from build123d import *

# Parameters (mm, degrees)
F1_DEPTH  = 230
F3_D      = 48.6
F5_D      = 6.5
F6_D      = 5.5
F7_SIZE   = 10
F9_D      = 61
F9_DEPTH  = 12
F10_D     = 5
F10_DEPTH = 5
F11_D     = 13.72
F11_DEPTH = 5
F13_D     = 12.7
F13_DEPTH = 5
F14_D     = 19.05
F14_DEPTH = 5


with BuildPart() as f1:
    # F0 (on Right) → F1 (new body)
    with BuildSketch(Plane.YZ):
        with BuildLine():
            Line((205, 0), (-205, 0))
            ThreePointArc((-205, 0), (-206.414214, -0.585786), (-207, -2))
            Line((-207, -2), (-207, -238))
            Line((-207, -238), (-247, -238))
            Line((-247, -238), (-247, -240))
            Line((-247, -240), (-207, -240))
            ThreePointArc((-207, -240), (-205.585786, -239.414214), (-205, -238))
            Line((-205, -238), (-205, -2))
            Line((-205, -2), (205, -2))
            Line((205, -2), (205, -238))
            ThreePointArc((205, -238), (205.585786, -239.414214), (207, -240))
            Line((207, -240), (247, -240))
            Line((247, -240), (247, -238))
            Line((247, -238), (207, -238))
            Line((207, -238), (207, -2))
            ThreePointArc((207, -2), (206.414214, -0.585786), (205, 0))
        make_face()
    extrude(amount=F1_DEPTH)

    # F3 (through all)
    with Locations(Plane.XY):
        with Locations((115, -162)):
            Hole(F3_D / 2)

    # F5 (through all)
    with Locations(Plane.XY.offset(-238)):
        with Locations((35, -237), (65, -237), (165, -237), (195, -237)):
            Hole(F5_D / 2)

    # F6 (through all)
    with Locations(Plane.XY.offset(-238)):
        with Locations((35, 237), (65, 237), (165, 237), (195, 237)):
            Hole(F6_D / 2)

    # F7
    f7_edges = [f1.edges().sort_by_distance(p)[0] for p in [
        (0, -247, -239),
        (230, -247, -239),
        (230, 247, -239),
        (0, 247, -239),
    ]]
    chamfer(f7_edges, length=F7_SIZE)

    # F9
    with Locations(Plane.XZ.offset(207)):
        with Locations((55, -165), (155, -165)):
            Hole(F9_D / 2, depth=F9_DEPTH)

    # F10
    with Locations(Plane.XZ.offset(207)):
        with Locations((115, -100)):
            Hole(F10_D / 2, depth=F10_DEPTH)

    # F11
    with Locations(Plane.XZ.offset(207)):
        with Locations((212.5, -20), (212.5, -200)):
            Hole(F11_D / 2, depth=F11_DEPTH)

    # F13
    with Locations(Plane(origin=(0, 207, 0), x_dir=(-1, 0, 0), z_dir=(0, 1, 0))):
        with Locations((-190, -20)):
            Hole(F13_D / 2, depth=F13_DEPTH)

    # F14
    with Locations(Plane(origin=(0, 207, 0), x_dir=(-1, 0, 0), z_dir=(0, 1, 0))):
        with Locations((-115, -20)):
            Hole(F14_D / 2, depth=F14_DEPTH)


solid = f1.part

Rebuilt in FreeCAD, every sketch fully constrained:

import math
import FreeCAD as App
import Part
import Sketcher

V = App.Vector
Q = App.Units.Quantity


def edges_at(feature, points):
    """Names of the edges that pass closest to the given points."""
    edges = feature.Shape.Edges
    near = lambda p: min(range(len(edges)), key=lambda i: edges[i].distToShape(Part.Vertex(*p))[0])
    return sorted({f"Edge{near(p) + 1}" for p in points})

doc = App.newDocument("Part")
body = doc.addObject("PartDesign::Body", "Body")

# Sketch on YZ plane
sketch1 = body.newObject("Sketcher::SketchObject", "Sketch")
sketch1.AttachmentSupport = (doc.getObject("YZ_Plane"), [""])
sketch1.MapMode = "FlatFace"
sketch1.addGeometry([
    Part.LineSegment(V(205, 0, 0), V(-205, 0, 0)),  # 0
    Part.ArcOfCircle(Part.Circle(V(-205, -2, 0), V(0, 0, 1), 2), math.radians(90), math.radians(180)),  # 1
    Part.LineSegment(V(-207, -2, 0), V(-207, -238, 0)),  # 2
    Part.LineSegment(V(-207, -238, 0), V(-247, -238, 0)),  # 3
    Part.LineSegment(V(-247, -238, 0), V(-247, -240, 0)),  # 4
    Part.LineSegment(V(-247, -240, 0), V(-207, -240, 0)),  # 5
    Part.ArcOfCircle(Part.Circle(V(-207, -238, 0), V(0, 0, 1), 2), math.radians(-90), math.radians(0)),  # 6
    Part.LineSegment(V(-205, -238, 0), V(-205, -2, 0)),  # 7
    Part.LineSegment(V(-205, -2, 0), V(205, -2, 0)),  # 8
    Part.LineSegment(V(205, -2, 0), V(205, -238, 0)),  # 9
    Part.ArcOfCircle(Part.Circle(V(207, -238, 0), V(0, 0, 1), 2), math.radians(180), math.radians(270)),  # 10
    Part.LineSegment(V(207, -240, 0), V(247, -240, 0)),  # 11
    Part.LineSegment(V(247, -240, 0), V(247, -238, 0)),  # 12
    Part.LineSegment(V(247, -238, 0), V(207, -238, 0)),  # 13
    Part.LineSegment(V(207, -238, 0), V(207, -2, 0)),  # 14
    Part.ArcOfCircle(Part.Circle(V(205, -2, 0), V(0, 0, 1), 2), math.radians(0), math.radians(90)),  # 15
], False)
sketch1.addConstraint([
    Sketcher.Constraint("Tangent", 0, 2, 1, 1),
    Sketcher.Constraint("Tangent", 1, 2, 2, 1),
    Sketcher.Constraint("Coincident", 2, 2, 3, 1),
    Sketcher.Constraint("Coincident", 3, 2, 4, 1),
    Sketcher.Constraint("Coincident", 4, 2, 5, 1),
    Sketcher.Constraint("Tangent", 5, 2, 6, 1),
    Sketcher.Constraint("Tangent", 6, 2, 7, 1),
    Sketcher.Constraint("Coincident", 7, 2, 8, 1),
    Sketcher.Constraint("Coincident", 8, 2, 9, 1),
    Sketcher.Constraint("Tangent", 9, 2, 10, 1),
    Sketcher.Constraint("Tangent", 10, 2, 11, 1),
    Sketcher.Constraint("Coincident", 11, 2, 12, 1),
    Sketcher.Constraint("Coincident", 12, 2, 13, 1),
    Sketcher.Constraint("Coincident", 13, 2, 14, 1),
    Sketcher.Constraint("Tangent", 14, 2, 15, 1),
    Sketcher.Constraint("Tangent", 15, 2, 0, 1),
    Sketcher.Constraint("Horizontal", 0),
    Sketcher.Constraint("Vertical", 2),
    Sketcher.Constraint("Horizontal", 3),
    Sketcher.Constraint("Vertical", 4),
    Sketcher.Constraint("Horizontal", 5),
    Sketcher.Constraint("Vertical", 7),
    Sketcher.Constraint("Horizontal", 8),
    Sketcher.Constraint("Vertical", 9),
    Sketcher.Constraint("Horizontal", 11),
    Sketcher.Constraint("Vertical", 12),
    Sketcher.Constraint("Horizontal", 13),
    Sketcher.Constraint("Vertical", 14),
    Sketcher.Constraint("Coincident", 2, 2, 6, 3),
    Sketcher.Constraint("Coincident", 7, 2, 1, 3),
    Sketcher.Constraint("Coincident", 8, 2, 15, 3),
    Sketcher.Constraint("Coincident", 13, 2, 10, 3),
    Sketcher.Constraint("Symmetric", 0, 2, 15, 2, -1, 1),
    Sketcher.Constraint("Symmetric", 4, 2, 11, 2, -2),
    Sketcher.Constraint("Radius", 1, Q("1.999999 mm")),
    Sketcher.Constraint("DistanceX", 0, 2, 0, 1, Q("410 mm")),
    Sketcher.Constraint("DistanceX", 3, 2, 3, 1, Q("40 mm")),
    Sketcher.Constraint("DistanceY", 2, 2, 2, 1, Q("236 mm")),
])
pad1 = body.newObject("PartDesign::Pad", "Pad")
pad1.Profile = sketch1
pad1.Length = 230

# Sketch on XY plane
sketch2 = body.newObject("Sketcher::SketchObject", "Sketch001")
sketch2.AttachmentSupport = (doc.getObject("XY_Plane"), [""])
sketch2.MapMode = "FlatFace"
sketch2.addGeometry(Part.Circle(V(115, -162, 0), V(0, 0, 1), 24), False)
sketch2.addConstraint([
    Sketcher.Constraint("Diameter", 0, Q("48.6 mm")),
    Sketcher.Constraint("DistanceX", -1, 1, 0, 3, Q("115 mm")),
    Sketcher.Constraint("DistanceY", 0, 3, -1, 1, Q("162 mm")),
])
doc.recompute()
hole = body.newObject("PartDesign::Hole", "Hole")
hole.Profile = sketch2
hole.ThreadType = "None"
hole.Diameter = 48.6
hole.DepthType = "ThroughAll"

# Sketch on XY plane
sketch3 = body.newObject("Sketcher::SketchObject", "Sketch002")
sketch3.AttachmentSupport = (doc.getObject("XY_Plane"), [""])
sketch3.MapMode = "FlatFace"
sketch3.AttachmentOffset = App.Placement(V(0, 0, -238), App.Rotation())
sketch3.addGeometry([
    Part.Circle(V(35, -237, 0), V(0, 0, 1), 3.2),
    Part.Circle(V(65, -237, 0), V(0, 0, 1), 3.2),
    Part.Circle(V(165, -237, 0), V(0, 0, 1), 3.2),
    Part.Circle(V(195, -237, 0), V(0, 0, 1), 3.2),
], False)
sketch3.addConstraint([
    Sketcher.Constraint("Equal", 0, 1),
    Sketcher.Constraint("Equal", 1, 2),
    Sketcher.Constraint("Equal", 2, 3),
    Sketcher.Constraint("Horizontal", 0, 3, 1, 3),
    Sketcher.Constraint("Horizontal", 1, 3, 2, 3),
    Sketcher.Constraint("Horizontal", 2, 3, 3, 3),
    Sketcher.Constraint("Diameter", 0, Q("6.5 mm")),
    Sketcher.Constraint("DistanceX", -1, 1, 0, 3, Q("35 mm")),
    Sketcher.Constraint("DistanceY", 0, 3, -1, 1, Q("237 mm")),
    Sketcher.Constraint("DistanceX", -1, 1, 1, 3, Q("65 mm")),
    Sketcher.Constraint("DistanceX", -1, 1, 2, 3, Q("165 mm")),
    Sketcher.Constraint("DistanceX", -1, 1, 3, 3, Q("195 mm")),
])
doc.recompute()
hole2 = body.newObject("PartDesign::Hole", "Hole001")
hole2.Profile = sketch3
hole2.ThreadType = "None"
hole2.Diameter = 6.5
hole2.DepthType = "ThroughAll"

# Sketch on XY plane
sketch4 = body.newObject("Sketcher::SketchObject", "Sketch003")
sketch4.AttachmentSupport = (doc.getObject("XY_Plane"), [""])
sketch4.MapMode = "FlatFace"
sketch4.AttachmentOffset = App.Placement(V(0, 0, -238), App.Rotation())
sketch4.addGeometry([
    Part.Circle(V(35, 237, 0), V(0, 0, 1), 2.8),
    Part.Circle(V(65, 237, 0), V(0, 0, 1), 2.8),
    Part.Circle(V(165, 237, 0), V(0, 0, 1), 2.8),
    Part.Circle(V(195, 237, 0), V(0, 0, 1), 2.8),
], False)
sketch4.addConstraint([
    Sketcher.Constraint("Equal", 0, 1),
    Sketcher.Constraint("Equal", 1, 2),
    Sketcher.Constraint("Equal", 2, 3),
    Sketcher.Constraint("Horizontal", 0, 3, 1, 3),
    Sketcher.Constraint("Horizontal", 1, 3, 2, 3),
    Sketcher.Constraint("Horizontal", 2, 3, 3, 3),
    Sketcher.Constraint("Diameter", 0, Q("5.5 mm")),
    Sketcher.Constraint("DistanceX", -1, 1, 0, 3, Q("35 mm")),
    Sketcher.Constraint("DistanceY", -1, 1, 0, 3, Q("237 mm")),
    Sketcher.Constraint("DistanceX", -1, 1, 1, 3, Q("65 mm")),
    Sketcher.Constraint("DistanceX", -1, 1, 2, 3, Q("165 mm")),
    Sketcher.Constraint("DistanceX", -1, 1, 3, 3, Q("195 mm")),
])
doc.recompute()
hole3 = body.newObject("PartDesign::Hole", "Hole002")
hole3.Profile = sketch4
hole3.ThreadType = "None"
hole3.Diameter = 5.5
hole3.DepthType = "ThroughAll"
doc.recompute()

chamfer = body.newObject("PartDesign::Chamfer", "Chamfer")
chamfer.Base = (hole3, edges_at(hole3, [
    (0, -247, -239),
    (230, -247, -239),
    (230, 247, -239),
    (0, 247, -239),
]))
chamfer.Size = 10

# Sketch on XZ plane
sketch5 = body.newObject("Sketcher::SketchObject", "Sketch004")
sketch5.AttachmentSupport = (doc.getObject("XZ_Plane"), [""])
sketch5.MapMode = "FlatFace"
sketch5.AttachmentOffset = App.Placement(V(0, 0, 207), App.Rotation())
sketch5.addGeometry([
    Part.Circle(V(55, -165, 0), V(0, 0, 1), 30),
    Part.Circle(V(155, -165, 0), V(0, 0, 1), 30),
], False)
sketch5.addConstraint([
    Sketcher.Constraint("Equal", 0, 1),
    Sketcher.Constraint("Horizontal", 0, 3, 1, 3),
    Sketcher.Constraint("Diameter", 0, Q("61 mm")),
    Sketcher.Constraint("DistanceX", -1, 1, 0, 3, Q("55 mm")),
    Sketcher.Constraint("DistanceY", 0, 3, -1, 1, Q("165 mm")),
    Sketcher.Constraint("DistanceX", -1, 1, 1, 3, Q("155 mm")),
])
doc.recompute()
hole4 = body.newObject("PartDesign::Hole", "Hole003")
hole4.Profile = sketch5
hole4.ThreadType = "None"
hole4.Diameter = 61
hole4.DepthType = "Dimension"
hole4.Depth = 12
hole4.DrillPoint = "Flat"

# Sketch on XZ plane
sketch6 = body.newObject("Sketcher::SketchObject", "Sketch005")
sketch6.AttachmentSupport = (doc.getObject("XZ_Plane"), [""])
sketch6.MapMode = "FlatFace"
sketch6.AttachmentOffset = App.Placement(V(0, 0, 207), App.Rotation())
sketch6.addGeometry(Part.Circle(V(115, -100, 0), V(0, 0, 1), 2.5), False)
sketch6.addConstraint([
    Sketcher.Constraint("Diameter", 0, Q("5 mm")),
    Sketcher.Constraint("DistanceX", -1, 1, 0, 3, Q("115 mm")),
    Sketcher.Constraint("DistanceY", 0, 3, -1, 1, Q("100 mm")),
])
doc.recompute()
hole5 = body.newObject("PartDesign::Hole", "Hole004")
hole5.Profile = sketch6
hole5.ThreadType = "None"
hole5.Diameter = 5
hole5.DepthType = "Dimension"
hole5.Depth = 5
hole5.DrillPoint = "Flat"

# Sketch on XZ plane
sketch7 = body.newObject("Sketcher::SketchObject", "Sketch006")
sketch7.AttachmentSupport = (doc.getObject("XZ_Plane"), [""])
sketch7.MapMode = "FlatFace"
sketch7.AttachmentOffset = App.Placement(V(0, 0, 207), App.Rotation())
sketch7.addGeometry([
    Part.Circle(V(212, -20, 0), V(0, 0, 1), 7),
    Part.Circle(V(212, -200, 0), V(0, 0, 1), 7),
], False)
sketch7.addConstraint([
    Sketcher.Constraint("Equal", 0, 1),
    Sketcher.Constraint("Vertical", 0, 3, 1, 3),
    Sketcher.Constraint("Diameter", 0, Q("13.72 mm")),
    Sketcher.Constraint("DistanceY", 0, 3, -1, 1, Q("20 mm")),
    Sketcher.Constraint("DistanceY", 1, 3, -1, 1, Q("200 mm")),
    Sketcher.Constraint("DistanceX", -1, 1, 0, 3, Q("212.5 mm")),
])
doc.recompute()
hole6 = body.newObject("PartDesign::Hole", "Hole005")
hole6.Profile = sketch7
hole6.ThreadType = "None"
hole6.Diameter = 13.72
hole6.DepthType = "Dimension"
hole6.Depth = 5
hole6.DrillPoint = "Flat"

# Sketch on XZ plane
sketch8 = body.newObject("Sketcher::SketchObject", "Sketch007")
sketch8.AttachmentSupport = (doc.getObject("XZ_Plane"), [""])
sketch8.MapMode = "FlatFace"
sketch8.AttachmentOffset = App.Placement(V(0, 0, -207), App.Rotation())
sketch8.addGeometry(Part.Circle(V(190, -20, 0), V(0, 0, 1), 6), False)
sketch8.addConstraint([
    Sketcher.Constraint("Diameter", 0, Q("12.7 mm")),
    Sketcher.Constraint("DistanceX", -1, 1, 0, 3, Q("190 mm")),
    Sketcher.Constraint("DistanceY", 0, 3, -1, 1, Q("20 mm")),
])
doc.recompute()
hole7 = body.newObject("PartDesign::Hole", "Hole006")
hole7.Profile = sketch8
hole7.ThreadType = "None"
hole7.Diameter = 12.7
hole7.DepthType = "Dimension"
hole7.Depth = 5
hole7.DrillPoint = "Flat"
hole7.Reversed = True

# Sketch on XZ plane
sketch9 = body.newObject("Sketcher::SketchObject", "Sketch008")
sketch9.AttachmentSupport = (doc.getObject("XZ_Plane"), [""])
sketch9.MapMode = "FlatFace"
sketch9.AttachmentOffset = App.Placement(V(0, 0, -207), App.Rotation())
sketch9.addGeometry(Part.Circle(V(115, -20, 0), V(0, 0, 1), 10), False)
sketch9.addConstraint([
    Sketcher.Constraint("Diameter", 0, Q("19.05 mm")),
    Sketcher.Constraint("DistanceX", -1, 1, 0, 3, Q("115 mm")),
    Sketcher.Constraint("DistanceY", 0, 3, -1, 1, Q("20 mm")),
])
doc.recompute()
hole8 = body.newObject("PartDesign::Hole", "Hole007")
hole8.Profile = sketch9
hole8.ThreadType = "None"
hole8.Diameter = 19.05
hole8.DepthType = "Dimension"
hole8.Depth = 5
hole8.DrillPoint = "Flat"
hole8.Reversed = True

doc.recompute()
